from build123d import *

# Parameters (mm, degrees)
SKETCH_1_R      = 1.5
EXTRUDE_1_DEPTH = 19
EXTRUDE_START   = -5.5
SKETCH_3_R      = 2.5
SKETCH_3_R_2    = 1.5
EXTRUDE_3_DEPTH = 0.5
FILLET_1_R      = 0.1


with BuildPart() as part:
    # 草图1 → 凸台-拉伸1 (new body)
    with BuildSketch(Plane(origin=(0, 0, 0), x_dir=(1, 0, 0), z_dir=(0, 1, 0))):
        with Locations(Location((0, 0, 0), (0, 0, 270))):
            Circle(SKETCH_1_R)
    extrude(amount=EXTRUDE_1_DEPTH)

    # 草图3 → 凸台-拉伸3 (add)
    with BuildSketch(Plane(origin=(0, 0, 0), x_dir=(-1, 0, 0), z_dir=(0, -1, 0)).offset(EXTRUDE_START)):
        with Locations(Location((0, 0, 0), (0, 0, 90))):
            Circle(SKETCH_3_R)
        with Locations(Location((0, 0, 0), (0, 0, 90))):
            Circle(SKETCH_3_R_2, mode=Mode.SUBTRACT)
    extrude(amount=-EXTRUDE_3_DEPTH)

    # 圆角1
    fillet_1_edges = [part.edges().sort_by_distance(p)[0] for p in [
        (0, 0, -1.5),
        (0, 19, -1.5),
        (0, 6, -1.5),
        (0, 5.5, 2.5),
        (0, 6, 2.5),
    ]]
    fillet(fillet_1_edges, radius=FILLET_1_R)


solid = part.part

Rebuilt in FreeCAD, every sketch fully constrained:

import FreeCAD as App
import Part
import Sketcher

V = App.Vector
Q = App.Units.Quantity


def edges_at(feature, points):
    """Names of the edges that pass closest to the given points."""
    edges = feature.Shape.Edges
    near = lambda p: min(range(len(edges)), key=lambda i: edges[i].distToShape(Part.Vertex(*p))[0])
    return sorted({f"Edge{near(p) + 1}" for p in points})

doc = App.newDocument("Part")
body = doc.addObject("PartDesign::Body", "Body")

# Sketch on XZ plane
sketch1 = doc.addObject("Sketcher::SketchObject", "Sketch")
body.addObject(sketch1)
sketch1.AttachmentSupport = (doc.XZ_Plane, [""])
sketch1.MapMode = "FlatFace"
sketch1.addGeometry(Part.Circle(V(0, 0, 0), V(0, 0, 1), 1.5), False)
sketch1.addConstraint(Sketcher.Constraint("Coincident", 0, 3, -1, 1))
sketch1.addConstraint(Sketcher.Constraint("Diameter", 0, Q("3 mm")))
pad1 = doc.addObject("PartDesign::Pad", "Pad")
body.addObject(pad1)
pad1.Profile = sketch1
pad1.Length = 19
pad1.Reversed = True

# Sketch on XZ plane
sketch2 = doc.addObject("Sketcher::SketchObject", "Sketch001")
body.addObject(sketch2)
sketch2.AttachmentSupport = (doc.XZ_Plane, [""])
sketch2.MapMode = "FlatFace"
sketch2.AttachmentOffset = App.Placement(V(0, 0, -5.5), App.Rotation())
sketch2.addGeometry(Part.Circle(V(0, 0, 0), V(0, 0, 1), 2.5), False)
sketch2.addGeometry(Part.Circle(V(0, 0, 0), V(0, 0, 1), 1.5), False)
sketch2.addConstraint(Sketcher.Constraint("Coincident", 0, 3, -1, 1))
sketch2.addConstraint(Sketcher.Constraint("Coincident", 1, 3, -1, 1))
sketch2.addConstraint(Sketcher.Constraint("Diameter", 0, Q("5 mm")))
sketch2.addConstraint(Sketcher.Constraint("Diameter", 1, Q("3 mm")))
pad2 = doc.addObject("PartDesign::Pad", "Pad001")
body.addObject(pad2)
pad2.Profile = sketch2
pad2.Length = 0.5
pad2.Reversed = True
doc.recompute()

fillet = doc.addObject("PartDesign::Fillet", "Fillet")
body.addObject(fillet)
fillet.Base = (pad2, edges_at(pad2, [
    (0, 0, -1.5),
    (0, 19, -1.5),
    (0, 6, -1.5),
    (0, 5.5, 2.5),
    (0, 6, 2.5),
]))
fillet.Radius = 0.1

doc.recompute()
